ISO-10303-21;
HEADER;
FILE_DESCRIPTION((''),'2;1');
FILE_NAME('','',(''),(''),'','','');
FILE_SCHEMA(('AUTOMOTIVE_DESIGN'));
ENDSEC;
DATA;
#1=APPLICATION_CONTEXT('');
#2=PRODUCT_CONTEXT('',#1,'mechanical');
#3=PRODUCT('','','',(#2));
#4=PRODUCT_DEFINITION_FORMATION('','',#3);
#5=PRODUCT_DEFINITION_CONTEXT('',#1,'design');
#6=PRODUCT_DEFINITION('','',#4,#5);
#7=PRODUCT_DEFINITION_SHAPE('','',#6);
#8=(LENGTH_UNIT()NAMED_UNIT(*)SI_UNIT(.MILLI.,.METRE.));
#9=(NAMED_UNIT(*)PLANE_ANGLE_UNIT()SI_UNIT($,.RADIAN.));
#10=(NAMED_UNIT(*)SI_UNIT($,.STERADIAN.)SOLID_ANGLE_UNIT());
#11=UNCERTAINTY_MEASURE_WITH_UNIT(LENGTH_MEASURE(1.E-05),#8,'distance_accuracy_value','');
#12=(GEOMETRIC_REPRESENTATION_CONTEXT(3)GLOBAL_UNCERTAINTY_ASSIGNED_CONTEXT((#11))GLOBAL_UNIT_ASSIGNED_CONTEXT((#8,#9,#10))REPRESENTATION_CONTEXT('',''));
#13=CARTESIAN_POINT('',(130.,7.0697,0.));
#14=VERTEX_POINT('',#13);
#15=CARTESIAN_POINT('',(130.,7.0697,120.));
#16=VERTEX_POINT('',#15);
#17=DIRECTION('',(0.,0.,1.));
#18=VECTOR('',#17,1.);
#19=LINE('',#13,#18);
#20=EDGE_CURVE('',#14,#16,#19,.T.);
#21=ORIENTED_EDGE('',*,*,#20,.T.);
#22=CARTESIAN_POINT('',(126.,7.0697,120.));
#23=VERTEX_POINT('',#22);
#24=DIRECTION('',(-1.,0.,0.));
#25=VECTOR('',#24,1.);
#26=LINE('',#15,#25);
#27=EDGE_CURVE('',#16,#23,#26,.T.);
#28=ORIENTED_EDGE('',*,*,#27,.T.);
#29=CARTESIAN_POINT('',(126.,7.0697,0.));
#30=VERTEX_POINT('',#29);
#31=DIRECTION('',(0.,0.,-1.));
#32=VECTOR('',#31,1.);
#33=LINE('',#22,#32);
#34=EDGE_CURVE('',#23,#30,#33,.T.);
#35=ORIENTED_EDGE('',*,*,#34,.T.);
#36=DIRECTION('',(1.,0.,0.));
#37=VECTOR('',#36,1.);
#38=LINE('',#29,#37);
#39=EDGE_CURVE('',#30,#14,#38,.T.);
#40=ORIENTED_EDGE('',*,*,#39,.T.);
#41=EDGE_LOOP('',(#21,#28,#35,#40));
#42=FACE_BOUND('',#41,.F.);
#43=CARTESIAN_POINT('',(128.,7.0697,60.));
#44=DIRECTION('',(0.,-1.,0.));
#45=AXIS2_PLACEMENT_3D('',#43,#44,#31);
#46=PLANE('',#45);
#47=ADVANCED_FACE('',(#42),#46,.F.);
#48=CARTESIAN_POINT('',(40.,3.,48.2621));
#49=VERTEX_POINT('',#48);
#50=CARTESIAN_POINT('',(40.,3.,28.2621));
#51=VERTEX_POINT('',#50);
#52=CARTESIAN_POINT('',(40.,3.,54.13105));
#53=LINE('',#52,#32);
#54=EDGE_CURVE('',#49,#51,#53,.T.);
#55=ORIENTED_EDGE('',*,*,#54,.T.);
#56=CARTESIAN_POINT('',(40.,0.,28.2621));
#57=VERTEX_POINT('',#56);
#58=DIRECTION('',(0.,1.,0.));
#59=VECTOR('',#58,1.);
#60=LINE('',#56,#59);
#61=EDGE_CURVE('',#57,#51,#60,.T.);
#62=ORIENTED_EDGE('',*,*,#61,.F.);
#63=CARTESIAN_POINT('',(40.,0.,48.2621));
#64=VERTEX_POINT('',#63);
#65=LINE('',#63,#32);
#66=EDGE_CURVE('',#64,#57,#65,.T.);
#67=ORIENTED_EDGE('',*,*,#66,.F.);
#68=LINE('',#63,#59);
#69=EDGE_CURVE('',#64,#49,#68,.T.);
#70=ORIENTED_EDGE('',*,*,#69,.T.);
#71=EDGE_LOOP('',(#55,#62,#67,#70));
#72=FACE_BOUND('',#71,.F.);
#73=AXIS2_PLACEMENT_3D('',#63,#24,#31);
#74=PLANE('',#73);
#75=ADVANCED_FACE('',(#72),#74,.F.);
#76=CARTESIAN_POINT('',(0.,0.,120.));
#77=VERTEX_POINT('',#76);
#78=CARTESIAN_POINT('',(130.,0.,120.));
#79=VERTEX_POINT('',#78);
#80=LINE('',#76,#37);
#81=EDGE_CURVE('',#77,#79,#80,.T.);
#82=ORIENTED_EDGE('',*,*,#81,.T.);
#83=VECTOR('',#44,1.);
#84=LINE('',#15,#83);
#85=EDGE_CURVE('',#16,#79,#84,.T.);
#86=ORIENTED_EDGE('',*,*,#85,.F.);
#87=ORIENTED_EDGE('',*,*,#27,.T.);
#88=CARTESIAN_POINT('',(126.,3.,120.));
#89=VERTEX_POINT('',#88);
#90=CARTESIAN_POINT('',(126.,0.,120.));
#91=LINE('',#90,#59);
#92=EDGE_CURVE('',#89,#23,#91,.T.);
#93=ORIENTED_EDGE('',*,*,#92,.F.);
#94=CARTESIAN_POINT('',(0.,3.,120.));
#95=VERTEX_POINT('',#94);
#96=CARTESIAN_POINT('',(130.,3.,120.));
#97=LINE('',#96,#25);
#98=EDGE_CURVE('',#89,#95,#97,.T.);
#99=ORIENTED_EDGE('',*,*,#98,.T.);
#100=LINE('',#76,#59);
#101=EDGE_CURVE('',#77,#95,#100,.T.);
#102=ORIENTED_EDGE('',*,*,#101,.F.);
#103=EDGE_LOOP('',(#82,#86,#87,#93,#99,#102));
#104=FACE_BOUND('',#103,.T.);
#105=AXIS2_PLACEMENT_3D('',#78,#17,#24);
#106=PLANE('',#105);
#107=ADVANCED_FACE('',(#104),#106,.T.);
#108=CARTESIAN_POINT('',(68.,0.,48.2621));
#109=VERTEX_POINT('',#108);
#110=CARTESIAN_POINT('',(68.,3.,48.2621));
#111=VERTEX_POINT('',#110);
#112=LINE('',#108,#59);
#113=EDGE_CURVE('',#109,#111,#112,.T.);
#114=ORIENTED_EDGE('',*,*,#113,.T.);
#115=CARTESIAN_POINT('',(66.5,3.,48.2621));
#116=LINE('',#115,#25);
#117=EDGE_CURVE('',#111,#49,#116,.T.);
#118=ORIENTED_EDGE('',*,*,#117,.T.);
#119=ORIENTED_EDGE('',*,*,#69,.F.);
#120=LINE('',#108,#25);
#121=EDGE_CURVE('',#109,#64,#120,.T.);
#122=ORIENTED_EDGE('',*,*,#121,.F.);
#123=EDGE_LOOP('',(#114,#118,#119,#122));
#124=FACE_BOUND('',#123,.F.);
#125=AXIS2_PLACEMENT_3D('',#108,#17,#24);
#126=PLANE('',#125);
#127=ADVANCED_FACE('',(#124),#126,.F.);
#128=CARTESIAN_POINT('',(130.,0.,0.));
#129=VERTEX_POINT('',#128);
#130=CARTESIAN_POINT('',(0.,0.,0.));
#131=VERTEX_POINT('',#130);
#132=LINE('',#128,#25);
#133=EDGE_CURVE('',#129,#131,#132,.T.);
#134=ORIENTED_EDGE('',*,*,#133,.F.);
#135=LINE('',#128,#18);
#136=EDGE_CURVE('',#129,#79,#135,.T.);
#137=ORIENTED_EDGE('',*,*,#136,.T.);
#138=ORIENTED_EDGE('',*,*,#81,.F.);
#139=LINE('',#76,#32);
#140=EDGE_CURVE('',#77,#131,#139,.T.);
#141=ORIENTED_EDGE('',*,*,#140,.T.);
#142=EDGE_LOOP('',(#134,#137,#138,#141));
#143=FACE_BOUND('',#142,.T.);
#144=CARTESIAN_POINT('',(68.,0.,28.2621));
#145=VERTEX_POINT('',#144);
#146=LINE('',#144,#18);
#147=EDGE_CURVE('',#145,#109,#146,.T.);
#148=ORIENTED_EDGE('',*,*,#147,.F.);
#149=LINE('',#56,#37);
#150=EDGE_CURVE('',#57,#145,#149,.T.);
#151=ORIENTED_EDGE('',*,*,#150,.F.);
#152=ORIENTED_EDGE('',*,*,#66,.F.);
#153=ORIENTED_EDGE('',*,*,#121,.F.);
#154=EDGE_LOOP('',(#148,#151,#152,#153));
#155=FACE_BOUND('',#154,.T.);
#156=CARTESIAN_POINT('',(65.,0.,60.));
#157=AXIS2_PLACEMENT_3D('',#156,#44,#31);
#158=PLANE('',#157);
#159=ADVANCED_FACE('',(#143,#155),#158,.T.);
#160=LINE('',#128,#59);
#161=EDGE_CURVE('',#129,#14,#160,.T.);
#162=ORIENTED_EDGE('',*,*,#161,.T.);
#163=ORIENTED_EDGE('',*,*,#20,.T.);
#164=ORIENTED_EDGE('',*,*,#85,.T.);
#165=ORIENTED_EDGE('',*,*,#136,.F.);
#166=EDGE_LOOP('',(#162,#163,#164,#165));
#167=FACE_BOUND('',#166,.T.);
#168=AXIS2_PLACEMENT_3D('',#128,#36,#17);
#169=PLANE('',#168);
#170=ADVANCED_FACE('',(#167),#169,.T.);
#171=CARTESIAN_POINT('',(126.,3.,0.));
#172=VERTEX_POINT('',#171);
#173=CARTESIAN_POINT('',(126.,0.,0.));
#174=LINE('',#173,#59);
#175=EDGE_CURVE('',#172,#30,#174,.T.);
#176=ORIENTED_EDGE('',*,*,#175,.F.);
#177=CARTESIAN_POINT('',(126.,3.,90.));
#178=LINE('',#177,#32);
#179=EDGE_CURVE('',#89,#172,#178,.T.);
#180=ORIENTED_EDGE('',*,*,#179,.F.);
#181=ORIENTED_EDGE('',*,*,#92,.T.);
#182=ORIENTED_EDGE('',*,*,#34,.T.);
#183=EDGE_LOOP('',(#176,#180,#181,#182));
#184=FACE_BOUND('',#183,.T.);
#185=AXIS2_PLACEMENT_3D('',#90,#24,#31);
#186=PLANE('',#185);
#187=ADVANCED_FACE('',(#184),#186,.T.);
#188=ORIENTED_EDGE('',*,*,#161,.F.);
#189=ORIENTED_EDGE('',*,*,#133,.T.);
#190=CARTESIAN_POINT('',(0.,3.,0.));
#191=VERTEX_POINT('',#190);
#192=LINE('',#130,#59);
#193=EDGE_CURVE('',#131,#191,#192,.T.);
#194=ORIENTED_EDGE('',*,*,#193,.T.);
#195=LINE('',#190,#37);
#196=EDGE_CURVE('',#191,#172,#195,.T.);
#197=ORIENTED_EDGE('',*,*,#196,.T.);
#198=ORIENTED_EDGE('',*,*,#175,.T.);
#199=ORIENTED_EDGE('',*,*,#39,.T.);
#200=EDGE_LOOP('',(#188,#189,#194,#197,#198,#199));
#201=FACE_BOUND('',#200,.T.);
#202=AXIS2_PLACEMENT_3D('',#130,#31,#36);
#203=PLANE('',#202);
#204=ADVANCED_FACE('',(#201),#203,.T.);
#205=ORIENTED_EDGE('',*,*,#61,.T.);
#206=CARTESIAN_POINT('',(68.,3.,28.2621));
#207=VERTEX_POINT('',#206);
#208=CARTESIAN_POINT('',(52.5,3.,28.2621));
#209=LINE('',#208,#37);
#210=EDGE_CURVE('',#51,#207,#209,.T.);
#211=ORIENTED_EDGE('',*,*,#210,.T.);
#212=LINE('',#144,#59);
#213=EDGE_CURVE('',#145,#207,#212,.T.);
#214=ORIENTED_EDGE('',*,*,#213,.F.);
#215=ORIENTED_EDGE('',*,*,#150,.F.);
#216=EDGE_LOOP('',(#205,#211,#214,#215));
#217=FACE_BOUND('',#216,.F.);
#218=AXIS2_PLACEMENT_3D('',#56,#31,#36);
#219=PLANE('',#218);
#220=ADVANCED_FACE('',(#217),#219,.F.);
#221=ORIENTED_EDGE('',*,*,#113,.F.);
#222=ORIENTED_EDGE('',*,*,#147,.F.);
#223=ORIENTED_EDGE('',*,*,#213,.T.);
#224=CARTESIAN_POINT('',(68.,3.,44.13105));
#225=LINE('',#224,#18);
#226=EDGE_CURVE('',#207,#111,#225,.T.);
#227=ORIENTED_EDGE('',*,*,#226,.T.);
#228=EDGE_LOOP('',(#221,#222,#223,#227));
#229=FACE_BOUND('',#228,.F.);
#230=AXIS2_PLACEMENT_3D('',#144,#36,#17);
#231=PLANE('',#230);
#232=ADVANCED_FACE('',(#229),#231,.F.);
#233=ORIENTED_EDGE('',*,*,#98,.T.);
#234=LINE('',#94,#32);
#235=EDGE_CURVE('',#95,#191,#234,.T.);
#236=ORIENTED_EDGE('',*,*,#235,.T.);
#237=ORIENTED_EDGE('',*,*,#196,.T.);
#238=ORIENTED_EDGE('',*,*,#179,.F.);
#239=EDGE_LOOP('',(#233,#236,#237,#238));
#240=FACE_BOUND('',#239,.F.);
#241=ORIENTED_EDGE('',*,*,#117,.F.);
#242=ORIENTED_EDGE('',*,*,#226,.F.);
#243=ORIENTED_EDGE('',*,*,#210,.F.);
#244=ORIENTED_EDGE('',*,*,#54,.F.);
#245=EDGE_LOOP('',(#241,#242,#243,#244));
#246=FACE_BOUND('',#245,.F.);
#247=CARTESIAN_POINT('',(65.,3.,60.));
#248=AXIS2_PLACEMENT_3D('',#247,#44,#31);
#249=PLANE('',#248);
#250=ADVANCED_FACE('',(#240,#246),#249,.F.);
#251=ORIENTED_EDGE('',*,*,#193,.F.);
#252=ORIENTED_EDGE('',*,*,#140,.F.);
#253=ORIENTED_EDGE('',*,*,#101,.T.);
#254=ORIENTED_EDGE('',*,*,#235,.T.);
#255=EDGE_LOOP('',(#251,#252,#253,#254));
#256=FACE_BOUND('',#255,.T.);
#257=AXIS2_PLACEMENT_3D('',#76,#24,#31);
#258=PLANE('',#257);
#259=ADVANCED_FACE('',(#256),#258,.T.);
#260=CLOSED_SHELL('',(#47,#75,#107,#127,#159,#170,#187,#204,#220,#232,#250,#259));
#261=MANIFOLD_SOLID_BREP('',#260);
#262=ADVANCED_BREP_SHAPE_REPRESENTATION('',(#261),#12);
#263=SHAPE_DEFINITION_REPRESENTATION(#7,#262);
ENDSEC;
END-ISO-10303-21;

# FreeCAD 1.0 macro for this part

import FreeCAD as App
import Part
import Sketcher
from FreeCAD import Vector
Q = App.Units.Quantity


def add_polygon(sketch, points):
    """Adds a closed chain of lines whose ends are joined by coincident constraints."""
    first, n = sketch.GeometryCount, len(points)
    for a, b in zip(points, points[1:] + points[:1]):
        sketch.addGeometry(Part.LineSegment(App.Vector(*a, 0), App.Vector(*b, 0)), False)
    for i in range(n):
        sketch.addConstraint(Sketcher.Constraint("Coincident", first + i, 2, first + (i + 1) % n, 1))

doc = App.newDocument("Part")
body = doc.addObject("PartDesign::Body", "Body")

sketch1 = body.newObject("Sketcher::SketchObject", "Sketch")
sketch1.AttachmentSupport = (doc.getObject("XZ_Plane"), [""])
sketch1.MapMode = "FlatFace"
add_polygon(sketch1, [(0, 0), (130, 0), (130, 120), (0, 120)])
sketch1.addConstraint([
    Sketcher.Constraint("Horizontal", 0),
    Sketcher.Constraint("Vertical", 1),
    Sketcher.Constraint("Horizontal", 2),
    Sketcher.Constraint("Vertical", 3),
    Sketcher.Constraint("Coincident", 3, 2, -1, 1),
    Sketcher.Constraint("DistanceX", 0, 1, 0, 2, Q("130 mm")),
    Sketcher.Constraint("DistanceY", 1, 1, 1, 2, Q("120 mm")),
])
pad1 = body.newObject("PartDesign::Pad", "Pad")
pad1.Profile = sketch1
pad1.Length = 3
pad1.Reversed = True

sketch2 = body.newObject("Sketcher::SketchObject", "Sketch001")
sketch2.AttachmentSupport = (doc.getObject("XZ_Plane"), [""])
sketch2.MapMode = "FlatFace"
add_polygon(sketch2, [(130, 120), (126, 120), (126, 0), (130, 0)])
sketch2.addConstraint([
    Sketcher.Constraint("Horizontal", 0),
    Sketcher.Constraint("Vertical", 1),
    Sketcher.Constraint("Horizontal", 2),
    Sketcher.Constraint("Vertical", 3),
    Sketcher.Constraint("PointOnObject", 1, 2, -1),
    Sketcher.Constraint("DistanceX", 0, 2, 0, 1, Q("4 mm")),
    Sketcher.Constraint("DistanceY", 1, 2, 1, 1, Q("120 mm")),
    Sketcher.Constraint("DistanceX", -1, 1, 0, 2, Q("126 mm")),
])
pad2 = body.newObject("PartDesign::Pad", "Pad001")
pad2.Profile = sketch2
pad2.Length = 7.0697
pad2.Reversed = True

sketch3 = body.newObject("Sketcher::SketchObject", "Sketch002")
sketch3.AttachmentSupport = (doc.getObject("XZ_Plane"), [""])
sketch3.MapMode = "FlatFace"
add_polygon(sketch3, [(68, 28), (68, 48), (40, 48), (40, 28)])
sketch3.addConstraint([
    Sketcher.Constraint("Vertical", 0),
    Sketcher.Constraint("Horizontal", 1),
    Sketcher.Constraint("Vertical", 2),
    Sketcher.Constraint("Horizontal", 3),
    Sketcher.Constraint("DistanceX", 1, 2, 1, 1, Q("28 mm")),
    Sketcher.Constraint("DistanceY", 0, 1, 0, 2, Q("20 mm")),
    Sketcher.Constraint("DistanceX", -1, 1, 0, 2, Q("68 mm")),
    Sketcher.Constraint("DistanceY", -1, 1, 0, 2, Q("48.262 mm")),
])
pocket1 = body.newObject("PartDesign::Pocket", "Pocket")
pocket1.Profile = sketch3
pocket1.Length = 60.6919

doc.recompute()
